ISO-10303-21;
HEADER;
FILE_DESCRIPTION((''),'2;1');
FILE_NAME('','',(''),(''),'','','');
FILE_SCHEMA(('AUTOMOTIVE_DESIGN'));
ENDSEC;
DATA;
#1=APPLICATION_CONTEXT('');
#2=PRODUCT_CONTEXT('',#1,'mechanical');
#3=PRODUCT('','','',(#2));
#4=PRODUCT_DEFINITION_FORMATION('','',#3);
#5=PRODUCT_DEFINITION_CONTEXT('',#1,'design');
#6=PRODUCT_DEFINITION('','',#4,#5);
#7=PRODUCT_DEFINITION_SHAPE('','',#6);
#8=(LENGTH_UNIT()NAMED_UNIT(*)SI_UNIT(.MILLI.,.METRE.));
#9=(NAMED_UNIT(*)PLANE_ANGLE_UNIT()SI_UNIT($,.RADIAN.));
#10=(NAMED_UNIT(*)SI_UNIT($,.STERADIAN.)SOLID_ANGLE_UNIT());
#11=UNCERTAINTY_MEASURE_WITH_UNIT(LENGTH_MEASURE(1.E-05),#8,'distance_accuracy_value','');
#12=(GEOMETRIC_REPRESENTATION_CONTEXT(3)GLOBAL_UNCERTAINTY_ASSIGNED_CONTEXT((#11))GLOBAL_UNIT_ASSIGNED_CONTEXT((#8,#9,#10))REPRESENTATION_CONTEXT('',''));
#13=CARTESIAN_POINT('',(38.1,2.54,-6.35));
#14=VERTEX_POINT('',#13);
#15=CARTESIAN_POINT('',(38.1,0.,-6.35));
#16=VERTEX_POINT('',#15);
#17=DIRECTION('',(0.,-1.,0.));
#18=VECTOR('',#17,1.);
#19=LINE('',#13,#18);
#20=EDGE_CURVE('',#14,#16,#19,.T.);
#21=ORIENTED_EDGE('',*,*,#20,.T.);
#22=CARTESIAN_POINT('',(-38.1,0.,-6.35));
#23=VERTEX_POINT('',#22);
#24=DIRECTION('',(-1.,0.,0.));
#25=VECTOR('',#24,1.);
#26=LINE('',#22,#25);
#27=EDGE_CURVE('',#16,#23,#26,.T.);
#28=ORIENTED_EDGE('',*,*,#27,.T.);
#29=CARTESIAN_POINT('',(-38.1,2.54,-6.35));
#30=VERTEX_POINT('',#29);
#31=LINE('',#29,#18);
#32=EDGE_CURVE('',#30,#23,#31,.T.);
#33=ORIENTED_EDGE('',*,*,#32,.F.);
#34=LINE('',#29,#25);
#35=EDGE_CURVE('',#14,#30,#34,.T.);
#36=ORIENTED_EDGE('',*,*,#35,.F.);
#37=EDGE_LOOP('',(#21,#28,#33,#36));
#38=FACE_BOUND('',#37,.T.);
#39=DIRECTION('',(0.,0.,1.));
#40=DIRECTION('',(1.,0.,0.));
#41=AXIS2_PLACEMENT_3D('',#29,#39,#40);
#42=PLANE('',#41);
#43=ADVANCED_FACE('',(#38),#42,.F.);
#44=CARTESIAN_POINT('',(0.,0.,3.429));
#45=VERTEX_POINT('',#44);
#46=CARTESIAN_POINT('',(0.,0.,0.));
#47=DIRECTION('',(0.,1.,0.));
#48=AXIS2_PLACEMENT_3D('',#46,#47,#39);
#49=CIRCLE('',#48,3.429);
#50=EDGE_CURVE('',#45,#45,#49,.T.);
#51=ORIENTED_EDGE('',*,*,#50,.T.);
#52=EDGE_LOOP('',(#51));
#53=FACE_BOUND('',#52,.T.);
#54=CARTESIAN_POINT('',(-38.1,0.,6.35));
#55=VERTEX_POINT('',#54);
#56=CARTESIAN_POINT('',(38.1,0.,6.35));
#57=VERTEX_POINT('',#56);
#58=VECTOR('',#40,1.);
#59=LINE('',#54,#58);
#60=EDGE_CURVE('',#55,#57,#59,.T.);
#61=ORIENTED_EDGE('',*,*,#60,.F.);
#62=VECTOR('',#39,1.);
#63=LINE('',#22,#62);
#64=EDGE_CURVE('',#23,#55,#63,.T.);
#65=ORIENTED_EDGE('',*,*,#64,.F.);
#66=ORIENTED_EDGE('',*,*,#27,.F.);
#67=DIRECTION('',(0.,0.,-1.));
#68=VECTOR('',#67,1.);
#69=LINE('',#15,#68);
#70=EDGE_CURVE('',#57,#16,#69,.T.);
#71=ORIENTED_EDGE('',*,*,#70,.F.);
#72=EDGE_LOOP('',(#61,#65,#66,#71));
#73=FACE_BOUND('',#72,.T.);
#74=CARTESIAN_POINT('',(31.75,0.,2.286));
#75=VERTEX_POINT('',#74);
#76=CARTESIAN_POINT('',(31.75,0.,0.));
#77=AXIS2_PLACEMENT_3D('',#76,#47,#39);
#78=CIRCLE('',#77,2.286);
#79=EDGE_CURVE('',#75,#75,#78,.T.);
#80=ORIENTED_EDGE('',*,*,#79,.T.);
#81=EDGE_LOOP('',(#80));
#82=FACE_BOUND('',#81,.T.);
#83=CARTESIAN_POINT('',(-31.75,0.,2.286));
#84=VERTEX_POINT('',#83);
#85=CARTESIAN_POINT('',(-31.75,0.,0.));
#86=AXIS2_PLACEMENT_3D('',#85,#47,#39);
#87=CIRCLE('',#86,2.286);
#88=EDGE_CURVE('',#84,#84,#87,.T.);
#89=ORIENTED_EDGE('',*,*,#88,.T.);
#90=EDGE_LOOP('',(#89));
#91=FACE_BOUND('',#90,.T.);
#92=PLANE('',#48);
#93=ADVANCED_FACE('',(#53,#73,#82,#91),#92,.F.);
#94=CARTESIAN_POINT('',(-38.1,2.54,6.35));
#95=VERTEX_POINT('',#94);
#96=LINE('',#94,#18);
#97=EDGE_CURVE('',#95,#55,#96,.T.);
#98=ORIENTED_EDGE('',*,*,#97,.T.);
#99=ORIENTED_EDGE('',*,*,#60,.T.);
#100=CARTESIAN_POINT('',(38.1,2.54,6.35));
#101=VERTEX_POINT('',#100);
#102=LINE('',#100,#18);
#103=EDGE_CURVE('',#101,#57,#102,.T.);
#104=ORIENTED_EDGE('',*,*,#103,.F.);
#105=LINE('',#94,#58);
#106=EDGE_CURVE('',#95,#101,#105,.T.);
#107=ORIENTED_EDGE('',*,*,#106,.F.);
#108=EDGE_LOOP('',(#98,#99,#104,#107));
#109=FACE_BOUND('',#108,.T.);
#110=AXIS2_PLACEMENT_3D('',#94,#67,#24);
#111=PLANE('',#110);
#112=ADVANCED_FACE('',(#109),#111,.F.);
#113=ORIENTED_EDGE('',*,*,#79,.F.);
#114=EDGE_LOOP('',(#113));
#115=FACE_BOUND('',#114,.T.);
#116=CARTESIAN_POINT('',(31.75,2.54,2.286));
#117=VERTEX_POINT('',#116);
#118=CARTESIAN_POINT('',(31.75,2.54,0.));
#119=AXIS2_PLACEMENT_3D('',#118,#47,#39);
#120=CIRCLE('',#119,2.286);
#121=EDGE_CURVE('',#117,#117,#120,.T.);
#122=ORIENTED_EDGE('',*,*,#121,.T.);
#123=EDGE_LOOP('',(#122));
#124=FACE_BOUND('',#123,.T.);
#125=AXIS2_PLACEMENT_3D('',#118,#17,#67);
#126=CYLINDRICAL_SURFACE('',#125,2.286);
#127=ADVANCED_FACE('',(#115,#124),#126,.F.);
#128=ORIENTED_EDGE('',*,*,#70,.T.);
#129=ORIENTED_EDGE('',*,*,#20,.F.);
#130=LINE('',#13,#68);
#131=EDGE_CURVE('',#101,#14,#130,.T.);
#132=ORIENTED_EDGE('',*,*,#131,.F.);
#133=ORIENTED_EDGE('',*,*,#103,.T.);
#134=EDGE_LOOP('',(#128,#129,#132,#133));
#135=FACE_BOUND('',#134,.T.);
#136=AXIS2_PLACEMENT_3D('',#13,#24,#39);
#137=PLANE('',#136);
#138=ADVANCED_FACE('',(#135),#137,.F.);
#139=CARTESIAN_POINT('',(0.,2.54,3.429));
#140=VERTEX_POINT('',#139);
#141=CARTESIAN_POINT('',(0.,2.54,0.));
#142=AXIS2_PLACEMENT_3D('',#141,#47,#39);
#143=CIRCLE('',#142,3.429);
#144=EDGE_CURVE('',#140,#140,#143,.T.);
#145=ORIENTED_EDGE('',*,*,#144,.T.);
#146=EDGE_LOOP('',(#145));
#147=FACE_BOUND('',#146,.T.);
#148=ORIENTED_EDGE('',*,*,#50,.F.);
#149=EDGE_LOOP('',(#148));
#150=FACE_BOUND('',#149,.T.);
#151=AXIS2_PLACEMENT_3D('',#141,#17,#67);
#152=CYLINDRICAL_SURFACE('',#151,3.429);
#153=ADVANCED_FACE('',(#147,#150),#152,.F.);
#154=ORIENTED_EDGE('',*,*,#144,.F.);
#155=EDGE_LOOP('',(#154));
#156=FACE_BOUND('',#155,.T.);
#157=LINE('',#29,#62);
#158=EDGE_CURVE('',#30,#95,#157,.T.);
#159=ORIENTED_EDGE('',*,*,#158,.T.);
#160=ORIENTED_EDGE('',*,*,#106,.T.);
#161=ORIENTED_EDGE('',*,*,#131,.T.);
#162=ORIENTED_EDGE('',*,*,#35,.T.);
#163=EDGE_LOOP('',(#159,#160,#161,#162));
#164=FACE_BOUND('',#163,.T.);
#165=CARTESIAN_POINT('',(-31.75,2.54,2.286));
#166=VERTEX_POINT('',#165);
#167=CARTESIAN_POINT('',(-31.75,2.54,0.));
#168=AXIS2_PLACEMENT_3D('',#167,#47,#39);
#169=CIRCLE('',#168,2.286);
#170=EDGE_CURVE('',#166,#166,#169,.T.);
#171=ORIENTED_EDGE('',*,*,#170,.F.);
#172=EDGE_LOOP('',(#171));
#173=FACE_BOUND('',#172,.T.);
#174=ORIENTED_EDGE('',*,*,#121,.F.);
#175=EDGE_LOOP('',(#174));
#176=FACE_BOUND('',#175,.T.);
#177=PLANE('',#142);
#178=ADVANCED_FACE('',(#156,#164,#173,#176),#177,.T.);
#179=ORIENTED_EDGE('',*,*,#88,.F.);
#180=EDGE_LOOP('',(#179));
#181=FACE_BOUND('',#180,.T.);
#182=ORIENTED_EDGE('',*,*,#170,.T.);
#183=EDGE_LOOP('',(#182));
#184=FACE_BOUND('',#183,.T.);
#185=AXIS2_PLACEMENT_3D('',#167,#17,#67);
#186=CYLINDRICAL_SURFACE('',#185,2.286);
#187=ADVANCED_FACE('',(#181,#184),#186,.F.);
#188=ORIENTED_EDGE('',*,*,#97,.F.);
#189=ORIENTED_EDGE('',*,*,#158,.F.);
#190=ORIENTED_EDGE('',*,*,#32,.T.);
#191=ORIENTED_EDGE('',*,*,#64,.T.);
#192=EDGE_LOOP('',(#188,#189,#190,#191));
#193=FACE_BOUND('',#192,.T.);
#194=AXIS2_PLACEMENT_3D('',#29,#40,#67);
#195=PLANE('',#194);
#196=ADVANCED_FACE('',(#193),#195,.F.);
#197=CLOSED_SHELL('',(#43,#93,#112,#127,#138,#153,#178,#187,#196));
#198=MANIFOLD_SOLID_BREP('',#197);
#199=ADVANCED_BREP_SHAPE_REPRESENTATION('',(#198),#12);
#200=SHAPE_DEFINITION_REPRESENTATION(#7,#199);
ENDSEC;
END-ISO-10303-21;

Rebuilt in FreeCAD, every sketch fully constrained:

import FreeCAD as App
import Part
import Sketcher

V = App.Vector
Q = App.Units.Quantity


def add_polygon(sketch, points):
    """Adds a closed chain of lines whose ends are joined by coincident constraints."""
    first, n = sketch.GeometryCount, len(points)
    for a, b in zip(points, points[1:] + points[:1]):
        sketch.addGeometry(Part.LineSegment(App.Vector(*a, 0), App.Vector(*b, 0)), False)
    for i in range(n):
        sketch.addConstraint(Sketcher.Constraint("Coincident", first + i, 2, first + (i + 1) % n, 1))

doc = App.newDocument("Part")
body = doc.addObject("PartDesign::Body", "Body")

sketch1 = body.newObject("Sketcher::SketchObject", "Sketch")
sketch1.AttachmentSupport = (doc.getObject("XZ_Plane"), [""])
sketch1.MapMode = "FlatFace"
add_polygon(sketch1, [(-38.1, -6.3), (-38.1, 6.3), (38.1, 6.3), (38.1, -6.3)])
sketch1.addGeometry(Part.Circle(V(-31.8, 0, 0), V(0, 0, 1), 2.3), False)
sketch1.addGeometry(Part.Circle(V(0, 0, 0), V(0, 0, 1), 3.4), False)
sketch1.addGeometry(Part.Circle(V(31.8, 0, 0), V(0, 0, 1), 2.3), False)
sketch1.addConstraint([
    Sketcher.Constraint("Vertical", 0),
    Sketcher.Constraint("Horizontal", 1),
    Sketcher.Constraint("Vertical", 2),
    Sketcher.Constraint("Horizontal", 3),
    Sketcher.Constraint("Coincident", 5, 3, -1, 1),
    Sketcher.Constraint("Equal", 4, 6),
    Sketcher.Constraint("Symmetric", 4, 3, 6, 3, -1, 1),
    Sketcher.Constraint("Symmetric", 0, 2, 2, 2, -1, 1),
    Sketcher.Constraint("PointOnObject", 4, 3, -1),
    Sketcher.Constraint("Diameter", 4, Q("0.18 in")),
    Sketcher.Constraint("Diameter", 5, Q("0.27 in")),
    Sketcher.Constraint("DistanceX", 1, 1, 1, 2, Q("3 in")),
    Sketcher.Constraint("DistanceY", 0, 1, 0, 2, Q("0.5 in")),
    Sketcher.Constraint("DistanceX", 4, 3, 6, 3, Q("2.5 in")),
])
pad1 = body.newObject("PartDesign::Pad", "Pad")
pad1.Profile = sketch1
pad1.Length = Q("0.1 in")
pad1.Reversed = True

doc.recompute()
